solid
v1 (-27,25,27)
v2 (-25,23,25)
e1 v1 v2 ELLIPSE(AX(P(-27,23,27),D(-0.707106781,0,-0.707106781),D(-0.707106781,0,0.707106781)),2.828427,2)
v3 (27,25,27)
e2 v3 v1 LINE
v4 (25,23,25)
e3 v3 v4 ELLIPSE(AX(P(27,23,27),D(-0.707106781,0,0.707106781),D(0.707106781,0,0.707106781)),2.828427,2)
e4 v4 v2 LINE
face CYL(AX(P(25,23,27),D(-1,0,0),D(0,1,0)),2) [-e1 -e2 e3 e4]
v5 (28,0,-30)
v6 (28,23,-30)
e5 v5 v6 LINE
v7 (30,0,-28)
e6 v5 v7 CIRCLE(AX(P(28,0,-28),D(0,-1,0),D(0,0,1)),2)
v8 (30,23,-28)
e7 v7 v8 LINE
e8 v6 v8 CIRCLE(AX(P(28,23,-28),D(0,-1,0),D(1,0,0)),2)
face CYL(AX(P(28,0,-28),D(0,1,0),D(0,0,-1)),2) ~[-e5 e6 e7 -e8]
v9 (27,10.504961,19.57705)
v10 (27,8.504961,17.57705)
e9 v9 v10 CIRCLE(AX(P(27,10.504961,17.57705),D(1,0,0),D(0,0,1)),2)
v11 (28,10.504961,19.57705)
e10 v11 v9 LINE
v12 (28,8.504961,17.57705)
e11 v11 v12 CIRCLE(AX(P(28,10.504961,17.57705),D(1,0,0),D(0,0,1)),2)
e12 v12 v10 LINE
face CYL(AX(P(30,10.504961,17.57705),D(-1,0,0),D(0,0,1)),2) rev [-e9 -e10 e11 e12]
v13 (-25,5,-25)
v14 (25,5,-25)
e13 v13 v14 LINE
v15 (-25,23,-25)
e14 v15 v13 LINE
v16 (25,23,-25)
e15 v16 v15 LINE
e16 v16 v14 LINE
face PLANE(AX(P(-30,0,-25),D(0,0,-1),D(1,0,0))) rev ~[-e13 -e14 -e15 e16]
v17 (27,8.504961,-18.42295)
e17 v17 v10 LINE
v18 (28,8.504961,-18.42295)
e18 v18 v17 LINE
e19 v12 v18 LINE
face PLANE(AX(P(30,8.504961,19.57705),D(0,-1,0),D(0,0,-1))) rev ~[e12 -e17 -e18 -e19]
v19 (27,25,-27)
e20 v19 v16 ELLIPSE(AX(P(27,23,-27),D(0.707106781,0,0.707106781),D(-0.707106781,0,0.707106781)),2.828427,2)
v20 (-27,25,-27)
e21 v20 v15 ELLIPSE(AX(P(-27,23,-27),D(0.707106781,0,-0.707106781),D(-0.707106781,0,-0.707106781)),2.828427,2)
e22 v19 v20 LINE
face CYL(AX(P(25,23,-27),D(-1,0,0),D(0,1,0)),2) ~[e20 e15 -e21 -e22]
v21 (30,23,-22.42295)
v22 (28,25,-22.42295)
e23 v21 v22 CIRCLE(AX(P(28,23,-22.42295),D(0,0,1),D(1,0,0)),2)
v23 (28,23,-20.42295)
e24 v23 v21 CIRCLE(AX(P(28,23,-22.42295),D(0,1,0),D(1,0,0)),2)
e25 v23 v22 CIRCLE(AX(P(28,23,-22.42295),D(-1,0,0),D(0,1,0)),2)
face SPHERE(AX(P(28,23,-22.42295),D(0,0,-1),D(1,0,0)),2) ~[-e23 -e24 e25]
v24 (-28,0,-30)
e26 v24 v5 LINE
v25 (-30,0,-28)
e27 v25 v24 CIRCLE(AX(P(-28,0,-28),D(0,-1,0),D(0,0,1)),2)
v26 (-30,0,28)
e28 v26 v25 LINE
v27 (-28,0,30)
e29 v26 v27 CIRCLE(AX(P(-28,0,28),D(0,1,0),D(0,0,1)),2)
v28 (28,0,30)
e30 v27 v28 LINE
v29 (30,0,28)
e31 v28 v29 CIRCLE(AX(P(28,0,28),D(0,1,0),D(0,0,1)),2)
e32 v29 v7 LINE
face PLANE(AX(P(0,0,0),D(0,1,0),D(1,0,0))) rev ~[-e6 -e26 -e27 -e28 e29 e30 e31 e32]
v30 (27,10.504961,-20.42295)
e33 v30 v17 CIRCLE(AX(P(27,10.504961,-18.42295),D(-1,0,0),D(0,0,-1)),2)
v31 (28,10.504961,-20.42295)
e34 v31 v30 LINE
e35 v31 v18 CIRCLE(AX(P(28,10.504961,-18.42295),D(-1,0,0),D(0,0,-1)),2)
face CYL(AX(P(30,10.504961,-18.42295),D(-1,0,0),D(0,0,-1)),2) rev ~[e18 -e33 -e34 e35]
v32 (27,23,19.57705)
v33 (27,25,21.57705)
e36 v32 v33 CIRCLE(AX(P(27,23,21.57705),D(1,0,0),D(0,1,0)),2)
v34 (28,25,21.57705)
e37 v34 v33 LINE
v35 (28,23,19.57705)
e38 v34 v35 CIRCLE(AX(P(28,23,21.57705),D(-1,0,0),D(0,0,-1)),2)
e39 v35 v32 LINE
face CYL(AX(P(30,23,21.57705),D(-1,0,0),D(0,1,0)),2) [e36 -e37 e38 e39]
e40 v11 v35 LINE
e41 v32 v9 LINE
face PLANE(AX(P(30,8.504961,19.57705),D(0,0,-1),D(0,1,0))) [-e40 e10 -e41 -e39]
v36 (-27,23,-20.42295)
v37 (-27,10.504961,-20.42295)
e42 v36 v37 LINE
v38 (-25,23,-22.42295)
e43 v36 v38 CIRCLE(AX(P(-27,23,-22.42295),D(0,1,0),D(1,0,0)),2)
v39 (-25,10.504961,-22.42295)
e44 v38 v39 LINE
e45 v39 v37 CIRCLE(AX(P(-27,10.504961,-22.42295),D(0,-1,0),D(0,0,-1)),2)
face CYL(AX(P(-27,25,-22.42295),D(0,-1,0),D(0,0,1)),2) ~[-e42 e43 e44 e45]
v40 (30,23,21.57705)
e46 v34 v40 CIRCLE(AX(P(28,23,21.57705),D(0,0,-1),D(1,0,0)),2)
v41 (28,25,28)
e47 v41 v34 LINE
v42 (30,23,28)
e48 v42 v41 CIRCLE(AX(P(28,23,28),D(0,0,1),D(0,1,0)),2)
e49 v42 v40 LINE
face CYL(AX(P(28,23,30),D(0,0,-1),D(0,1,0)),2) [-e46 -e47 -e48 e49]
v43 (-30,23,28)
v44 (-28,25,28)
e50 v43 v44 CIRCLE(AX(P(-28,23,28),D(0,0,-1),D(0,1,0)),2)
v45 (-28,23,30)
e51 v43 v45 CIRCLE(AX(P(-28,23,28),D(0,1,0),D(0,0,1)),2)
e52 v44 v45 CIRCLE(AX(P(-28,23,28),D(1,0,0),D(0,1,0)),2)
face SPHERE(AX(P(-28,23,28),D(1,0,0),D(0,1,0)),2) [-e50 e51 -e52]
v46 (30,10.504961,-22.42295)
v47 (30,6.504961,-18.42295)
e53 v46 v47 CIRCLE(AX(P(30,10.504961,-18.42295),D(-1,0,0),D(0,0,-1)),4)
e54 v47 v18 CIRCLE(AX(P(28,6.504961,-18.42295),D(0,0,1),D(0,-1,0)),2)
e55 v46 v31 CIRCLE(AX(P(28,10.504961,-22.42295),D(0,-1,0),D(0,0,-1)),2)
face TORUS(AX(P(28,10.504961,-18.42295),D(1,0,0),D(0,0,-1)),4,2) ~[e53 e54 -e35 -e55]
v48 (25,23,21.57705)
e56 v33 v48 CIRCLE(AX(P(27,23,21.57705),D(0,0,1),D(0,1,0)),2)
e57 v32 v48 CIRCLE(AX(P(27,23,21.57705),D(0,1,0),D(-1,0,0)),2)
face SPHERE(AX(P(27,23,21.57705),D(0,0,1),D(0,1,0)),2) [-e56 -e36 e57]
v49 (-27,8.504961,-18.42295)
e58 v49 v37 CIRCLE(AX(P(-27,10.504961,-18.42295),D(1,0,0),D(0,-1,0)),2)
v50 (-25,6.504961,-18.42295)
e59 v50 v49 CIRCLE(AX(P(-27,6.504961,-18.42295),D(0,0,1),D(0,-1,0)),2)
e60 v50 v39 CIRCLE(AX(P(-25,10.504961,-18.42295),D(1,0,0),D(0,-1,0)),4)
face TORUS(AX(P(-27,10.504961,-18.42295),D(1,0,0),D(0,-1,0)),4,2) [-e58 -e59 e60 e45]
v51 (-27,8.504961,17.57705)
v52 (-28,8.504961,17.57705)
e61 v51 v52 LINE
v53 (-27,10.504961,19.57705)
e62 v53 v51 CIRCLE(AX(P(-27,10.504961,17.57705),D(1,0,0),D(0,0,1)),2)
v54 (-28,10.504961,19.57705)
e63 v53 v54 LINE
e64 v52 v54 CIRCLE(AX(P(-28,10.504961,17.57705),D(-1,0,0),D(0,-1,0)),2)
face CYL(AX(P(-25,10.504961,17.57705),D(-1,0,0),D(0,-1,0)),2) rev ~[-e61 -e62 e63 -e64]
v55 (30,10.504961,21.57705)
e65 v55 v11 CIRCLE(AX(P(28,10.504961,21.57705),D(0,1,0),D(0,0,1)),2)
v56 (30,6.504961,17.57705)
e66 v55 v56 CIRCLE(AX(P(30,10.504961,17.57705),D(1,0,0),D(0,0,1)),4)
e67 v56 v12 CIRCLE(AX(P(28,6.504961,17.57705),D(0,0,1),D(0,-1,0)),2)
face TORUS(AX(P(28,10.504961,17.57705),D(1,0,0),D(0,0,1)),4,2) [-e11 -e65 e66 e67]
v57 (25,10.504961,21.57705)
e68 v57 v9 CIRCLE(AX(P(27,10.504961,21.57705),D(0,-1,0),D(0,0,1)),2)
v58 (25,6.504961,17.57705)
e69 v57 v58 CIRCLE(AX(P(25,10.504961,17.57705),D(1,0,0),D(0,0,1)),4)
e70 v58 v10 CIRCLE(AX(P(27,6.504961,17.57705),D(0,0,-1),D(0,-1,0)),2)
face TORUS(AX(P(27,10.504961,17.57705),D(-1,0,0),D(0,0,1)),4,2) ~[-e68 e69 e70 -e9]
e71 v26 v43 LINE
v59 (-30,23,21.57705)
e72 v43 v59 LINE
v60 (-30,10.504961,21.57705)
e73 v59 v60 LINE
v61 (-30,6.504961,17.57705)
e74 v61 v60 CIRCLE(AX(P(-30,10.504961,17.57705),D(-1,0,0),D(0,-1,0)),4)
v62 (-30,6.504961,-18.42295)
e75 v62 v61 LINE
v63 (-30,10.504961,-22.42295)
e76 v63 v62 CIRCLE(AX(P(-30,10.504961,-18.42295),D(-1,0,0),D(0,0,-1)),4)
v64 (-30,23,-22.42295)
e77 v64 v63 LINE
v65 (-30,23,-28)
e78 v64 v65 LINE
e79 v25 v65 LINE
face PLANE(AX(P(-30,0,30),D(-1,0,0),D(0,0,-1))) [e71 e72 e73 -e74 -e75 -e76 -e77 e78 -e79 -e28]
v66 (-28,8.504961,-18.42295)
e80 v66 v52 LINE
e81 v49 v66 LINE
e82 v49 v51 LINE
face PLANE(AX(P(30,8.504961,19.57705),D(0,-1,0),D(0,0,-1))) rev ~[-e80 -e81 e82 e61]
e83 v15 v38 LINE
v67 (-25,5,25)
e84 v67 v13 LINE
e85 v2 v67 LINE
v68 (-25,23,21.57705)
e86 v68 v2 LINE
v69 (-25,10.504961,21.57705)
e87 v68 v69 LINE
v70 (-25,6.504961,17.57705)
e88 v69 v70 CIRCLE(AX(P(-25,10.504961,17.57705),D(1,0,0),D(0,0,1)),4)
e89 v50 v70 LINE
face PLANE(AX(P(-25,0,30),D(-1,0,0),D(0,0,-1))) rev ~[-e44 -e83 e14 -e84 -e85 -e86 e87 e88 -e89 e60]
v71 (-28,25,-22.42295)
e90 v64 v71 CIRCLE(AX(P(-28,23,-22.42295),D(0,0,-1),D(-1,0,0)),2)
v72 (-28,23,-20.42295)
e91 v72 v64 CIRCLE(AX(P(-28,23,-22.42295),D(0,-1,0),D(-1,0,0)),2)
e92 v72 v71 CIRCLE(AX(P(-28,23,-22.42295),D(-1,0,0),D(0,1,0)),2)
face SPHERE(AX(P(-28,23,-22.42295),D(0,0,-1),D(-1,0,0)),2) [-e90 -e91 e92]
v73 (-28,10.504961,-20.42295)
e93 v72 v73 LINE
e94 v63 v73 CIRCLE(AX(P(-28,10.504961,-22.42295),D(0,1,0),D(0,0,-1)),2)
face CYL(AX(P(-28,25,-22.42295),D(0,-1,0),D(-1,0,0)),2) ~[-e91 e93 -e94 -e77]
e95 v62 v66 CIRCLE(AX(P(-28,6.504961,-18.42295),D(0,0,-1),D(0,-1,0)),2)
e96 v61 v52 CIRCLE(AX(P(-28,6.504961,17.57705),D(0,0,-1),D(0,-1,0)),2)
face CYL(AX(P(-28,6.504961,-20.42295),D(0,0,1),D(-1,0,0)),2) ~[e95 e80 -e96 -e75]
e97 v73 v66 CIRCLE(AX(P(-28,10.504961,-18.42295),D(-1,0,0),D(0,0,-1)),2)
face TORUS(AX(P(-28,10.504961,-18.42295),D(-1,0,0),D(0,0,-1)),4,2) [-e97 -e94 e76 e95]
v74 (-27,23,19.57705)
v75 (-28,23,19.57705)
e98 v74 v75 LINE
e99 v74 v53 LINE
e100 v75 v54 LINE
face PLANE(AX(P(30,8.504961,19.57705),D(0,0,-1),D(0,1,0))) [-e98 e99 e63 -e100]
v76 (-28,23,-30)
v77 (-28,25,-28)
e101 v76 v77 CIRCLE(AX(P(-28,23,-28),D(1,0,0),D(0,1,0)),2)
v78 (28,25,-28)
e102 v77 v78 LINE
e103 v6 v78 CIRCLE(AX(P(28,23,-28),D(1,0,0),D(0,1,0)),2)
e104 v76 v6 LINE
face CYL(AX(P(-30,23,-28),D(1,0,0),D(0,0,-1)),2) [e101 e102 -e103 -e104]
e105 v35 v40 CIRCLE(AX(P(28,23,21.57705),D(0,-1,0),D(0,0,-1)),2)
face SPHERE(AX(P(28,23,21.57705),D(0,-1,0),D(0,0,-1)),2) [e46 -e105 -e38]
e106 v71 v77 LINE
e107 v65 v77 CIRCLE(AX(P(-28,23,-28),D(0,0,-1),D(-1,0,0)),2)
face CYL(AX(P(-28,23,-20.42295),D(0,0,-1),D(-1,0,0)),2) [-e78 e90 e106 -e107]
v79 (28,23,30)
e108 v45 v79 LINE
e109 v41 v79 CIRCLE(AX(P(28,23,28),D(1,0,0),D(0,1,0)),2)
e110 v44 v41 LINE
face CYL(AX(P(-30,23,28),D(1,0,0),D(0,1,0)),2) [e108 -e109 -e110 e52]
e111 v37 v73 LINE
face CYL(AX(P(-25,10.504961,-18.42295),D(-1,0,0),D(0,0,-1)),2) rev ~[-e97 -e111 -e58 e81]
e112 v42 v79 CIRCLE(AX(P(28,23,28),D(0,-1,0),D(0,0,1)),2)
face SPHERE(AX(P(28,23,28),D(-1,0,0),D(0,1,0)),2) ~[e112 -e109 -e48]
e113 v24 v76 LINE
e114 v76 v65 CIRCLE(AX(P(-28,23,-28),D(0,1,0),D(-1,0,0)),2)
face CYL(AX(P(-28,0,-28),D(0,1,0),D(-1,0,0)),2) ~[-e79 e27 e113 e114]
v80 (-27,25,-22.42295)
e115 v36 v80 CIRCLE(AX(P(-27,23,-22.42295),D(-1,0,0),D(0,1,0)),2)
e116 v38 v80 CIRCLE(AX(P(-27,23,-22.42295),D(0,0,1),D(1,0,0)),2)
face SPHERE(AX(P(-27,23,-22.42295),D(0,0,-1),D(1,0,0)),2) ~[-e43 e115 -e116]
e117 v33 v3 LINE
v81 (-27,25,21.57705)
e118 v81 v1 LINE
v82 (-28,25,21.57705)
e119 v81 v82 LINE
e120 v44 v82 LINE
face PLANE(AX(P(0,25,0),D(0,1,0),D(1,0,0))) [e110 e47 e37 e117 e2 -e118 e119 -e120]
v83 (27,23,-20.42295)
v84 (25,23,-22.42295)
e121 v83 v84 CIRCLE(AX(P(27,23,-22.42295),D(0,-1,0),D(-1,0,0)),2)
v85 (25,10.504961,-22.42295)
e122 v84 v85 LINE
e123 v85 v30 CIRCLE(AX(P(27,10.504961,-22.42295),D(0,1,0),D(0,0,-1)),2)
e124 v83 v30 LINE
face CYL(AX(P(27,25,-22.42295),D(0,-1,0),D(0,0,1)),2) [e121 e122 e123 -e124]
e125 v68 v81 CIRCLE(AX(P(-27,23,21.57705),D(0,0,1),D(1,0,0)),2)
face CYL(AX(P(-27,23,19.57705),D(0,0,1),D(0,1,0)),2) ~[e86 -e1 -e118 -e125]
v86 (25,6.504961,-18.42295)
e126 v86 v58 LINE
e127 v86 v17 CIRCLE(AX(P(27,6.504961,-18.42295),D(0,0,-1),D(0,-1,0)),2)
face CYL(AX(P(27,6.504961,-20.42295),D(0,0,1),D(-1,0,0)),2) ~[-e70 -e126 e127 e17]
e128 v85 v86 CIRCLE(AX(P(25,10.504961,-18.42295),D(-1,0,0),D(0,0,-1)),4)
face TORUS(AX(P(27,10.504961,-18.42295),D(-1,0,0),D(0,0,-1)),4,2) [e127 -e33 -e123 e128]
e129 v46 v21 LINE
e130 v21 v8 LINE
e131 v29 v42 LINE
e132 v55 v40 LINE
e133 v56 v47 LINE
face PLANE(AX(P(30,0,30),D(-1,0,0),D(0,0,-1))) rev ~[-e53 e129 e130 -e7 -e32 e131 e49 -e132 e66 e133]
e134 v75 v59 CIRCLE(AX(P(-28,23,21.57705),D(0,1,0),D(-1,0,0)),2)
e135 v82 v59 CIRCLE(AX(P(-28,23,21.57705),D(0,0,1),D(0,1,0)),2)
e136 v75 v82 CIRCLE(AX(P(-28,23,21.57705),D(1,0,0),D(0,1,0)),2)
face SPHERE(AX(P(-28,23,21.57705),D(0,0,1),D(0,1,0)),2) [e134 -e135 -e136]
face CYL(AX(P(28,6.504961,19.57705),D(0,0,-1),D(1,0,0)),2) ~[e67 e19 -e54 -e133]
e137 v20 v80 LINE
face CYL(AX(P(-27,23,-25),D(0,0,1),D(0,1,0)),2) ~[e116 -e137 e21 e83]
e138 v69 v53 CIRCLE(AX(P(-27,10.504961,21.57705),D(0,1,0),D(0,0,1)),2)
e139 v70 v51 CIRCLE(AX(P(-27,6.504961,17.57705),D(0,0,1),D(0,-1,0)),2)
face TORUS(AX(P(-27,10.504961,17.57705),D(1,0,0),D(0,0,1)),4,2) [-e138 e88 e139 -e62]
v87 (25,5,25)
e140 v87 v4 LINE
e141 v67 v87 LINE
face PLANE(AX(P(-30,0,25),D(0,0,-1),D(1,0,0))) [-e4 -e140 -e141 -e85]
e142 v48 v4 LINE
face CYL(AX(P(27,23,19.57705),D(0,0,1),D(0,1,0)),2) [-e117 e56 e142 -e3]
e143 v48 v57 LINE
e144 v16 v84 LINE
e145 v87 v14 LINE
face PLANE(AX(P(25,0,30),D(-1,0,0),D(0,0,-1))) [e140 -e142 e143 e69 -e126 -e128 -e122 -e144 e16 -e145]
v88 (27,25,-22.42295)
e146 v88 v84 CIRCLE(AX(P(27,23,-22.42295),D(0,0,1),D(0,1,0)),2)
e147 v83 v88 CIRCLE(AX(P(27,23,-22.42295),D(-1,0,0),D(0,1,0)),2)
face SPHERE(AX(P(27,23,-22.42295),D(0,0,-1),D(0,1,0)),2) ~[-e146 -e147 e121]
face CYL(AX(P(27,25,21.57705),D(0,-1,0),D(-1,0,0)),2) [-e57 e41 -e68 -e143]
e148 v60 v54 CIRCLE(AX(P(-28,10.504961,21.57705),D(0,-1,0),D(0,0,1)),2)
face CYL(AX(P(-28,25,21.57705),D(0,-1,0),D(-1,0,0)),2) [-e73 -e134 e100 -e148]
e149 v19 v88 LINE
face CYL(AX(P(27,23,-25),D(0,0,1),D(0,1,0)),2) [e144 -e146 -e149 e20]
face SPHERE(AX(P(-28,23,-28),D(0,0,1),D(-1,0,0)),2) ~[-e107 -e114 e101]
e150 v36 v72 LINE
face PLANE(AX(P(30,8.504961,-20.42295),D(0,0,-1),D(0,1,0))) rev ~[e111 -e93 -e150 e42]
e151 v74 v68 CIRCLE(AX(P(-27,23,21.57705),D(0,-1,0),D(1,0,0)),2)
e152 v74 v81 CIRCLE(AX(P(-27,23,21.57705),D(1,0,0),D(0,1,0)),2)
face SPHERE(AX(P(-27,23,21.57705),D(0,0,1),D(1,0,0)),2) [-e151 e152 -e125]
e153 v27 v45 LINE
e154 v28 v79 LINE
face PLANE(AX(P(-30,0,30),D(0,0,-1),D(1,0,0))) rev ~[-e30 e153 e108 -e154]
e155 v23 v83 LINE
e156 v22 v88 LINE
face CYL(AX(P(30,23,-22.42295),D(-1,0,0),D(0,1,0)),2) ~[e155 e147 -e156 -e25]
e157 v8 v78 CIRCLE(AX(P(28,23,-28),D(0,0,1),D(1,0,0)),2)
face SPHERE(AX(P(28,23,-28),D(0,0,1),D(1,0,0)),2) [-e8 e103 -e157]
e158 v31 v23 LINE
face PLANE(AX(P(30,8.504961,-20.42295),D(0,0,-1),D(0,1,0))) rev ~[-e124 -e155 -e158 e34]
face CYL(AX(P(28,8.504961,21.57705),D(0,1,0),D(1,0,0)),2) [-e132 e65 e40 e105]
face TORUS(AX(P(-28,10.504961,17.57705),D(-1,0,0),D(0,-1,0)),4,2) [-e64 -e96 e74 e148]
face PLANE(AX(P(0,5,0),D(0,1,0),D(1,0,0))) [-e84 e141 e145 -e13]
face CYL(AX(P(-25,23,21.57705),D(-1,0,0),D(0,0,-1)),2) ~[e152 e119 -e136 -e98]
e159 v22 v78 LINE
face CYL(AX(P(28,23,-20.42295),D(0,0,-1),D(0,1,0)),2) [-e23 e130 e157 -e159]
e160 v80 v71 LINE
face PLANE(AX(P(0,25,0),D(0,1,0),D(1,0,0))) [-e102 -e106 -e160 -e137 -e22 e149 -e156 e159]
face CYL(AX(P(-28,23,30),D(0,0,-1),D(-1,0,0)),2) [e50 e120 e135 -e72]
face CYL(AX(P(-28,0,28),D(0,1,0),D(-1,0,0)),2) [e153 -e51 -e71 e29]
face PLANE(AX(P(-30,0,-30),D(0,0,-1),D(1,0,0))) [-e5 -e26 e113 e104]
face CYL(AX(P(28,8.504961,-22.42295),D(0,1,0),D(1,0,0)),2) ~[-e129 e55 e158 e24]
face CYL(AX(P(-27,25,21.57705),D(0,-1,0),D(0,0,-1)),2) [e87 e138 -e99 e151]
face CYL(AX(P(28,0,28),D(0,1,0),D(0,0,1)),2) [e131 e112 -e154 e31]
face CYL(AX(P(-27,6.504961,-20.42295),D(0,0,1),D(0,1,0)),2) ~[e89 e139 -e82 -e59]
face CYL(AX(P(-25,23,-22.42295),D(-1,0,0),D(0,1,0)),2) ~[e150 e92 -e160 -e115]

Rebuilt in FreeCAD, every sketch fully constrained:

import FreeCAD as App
import Part
import Sketcher

V = App.Vector


def edges_at(feature, points):
    """Names of the edges that pass closest to the given points."""
    edges = feature.Shape.Edges
    near = lambda p: min(range(len(edges)), key=lambda i: edges[i].distToShape(Part.Vertex(*p))[0])
    return sorted({f"Edge{near(p) + 1}" for p in points})


def faces_at(feature, points):
    """Names of the faces that lie closest to the given points."""
    faces = feature.Shape.Faces
    near = lambda p: min(range(len(faces)), key=lambda i: faces[i].distToShape(Part.Vertex(*p))[0])
    return sorted({f"Face{near(p) + 1}" for p in points})

doc = App.newDocument("Part")
params = doc.addObject("Spreadsheet::Sheet", "Params")
for row, (alias, value) in enumerate([
    ("sketch1_width", "60 mm"),
    ("pad1_length", "25 mm"),
    ("thickness_wall", "5 mm"),
    ("sketch2_width", "50 mm"),
    ("sketch2_height", "40 mm"),
    ("pocket1_length", "100 mm"),
    ("fillet_radius", "2 mm"),
], start=1):
    params.set(f"A{row}", alias)
    params.set(f"B{row}", "=" + value)
    params.setAlias(f"B{row}", alias)

body = doc.addObject("PartDesign::Body", "Body")

sketch1 = body.newObject("Sketcher::SketchObject", "Sketch")
sketch1.AttachmentSupport = (doc.getObject("XZ_Plane"), [""])
sketch1.MapMode = "FlatFace"
sketch1.addGeometry([
    Part.LineSegment(V(-30, -30, 0), V(-30, 30, 0)),
    Part.LineSegment(V(-30, 30, 0), V(30, 30, 0)),
    Part.LineSegment(V(30, 30, 0), V(30, -30, 0)),
    Part.LineSegment(V(30, -30, 0), V(-30, -30, 0)),
], False)
sketch1.addConstraint([
    Sketcher.Constraint("Coincident", 0, 2, 1, 1),
    Sketcher.Constraint("Coincident", 1, 2, 2, 1),
    Sketcher.Constraint("Coincident", 2, 2, 3, 1),
    Sketcher.Constraint("Coincident", 3, 2, 0, 1),
    Sketcher.Constraint("Vertical", 0),
    Sketcher.Constraint("Horizontal", 1),
    Sketcher.Constraint("Vertical", 2),
    Sketcher.Constraint("Horizontal", 3),
    Sketcher.Constraint("Symmetric", 0, 2, 2, 2, -1, 1),
    Sketcher.Constraint("Equal", 3, 0),
    Sketcher.Constraint("DistanceX", 1, 1, 1, 2, 60.0),
])
sketch1.setExpression("Constraints[10]", "Params.sketch1_width")
pad1 = body.newObject("PartDesign::Pad", "Pad")
pad1.Profile = sketch1
pad1.setExpression("Length", "Params.pad1_length")
pad1.Reversed = True
doc.recompute()

thickness = body.newObject("PartDesign::Thickness", "Thickness")
thickness.Base = (pad1, faces_at(pad1, [(0, 25, 0)]))
thickness.setExpression("Value", "Params.thickness_wall")
thickness.Reversed = True
thickness.Join = "Intersection"

sketch2 = body.newObject("Sketcher::SketchObject", "Sketch001")
sketch2.AttachmentSupport = (doc.getObject("YZ_Plane"), [""])
sketch2.MapMode = "FlatFace"
sketch2.AttachmentOffset = App.Placement(V(0, 0, 30), App.Rotation())
sketch2.addGeometry([
    Part.LineSegment(V(59, 20, 0), V(9, 20, 0)),
    Part.LineSegment(V(9, 20, 0), V(9, -20, 0)),
    Part.LineSegment(V(9, -20, 0), V(59, -20, 0)),
    Part.LineSegment(V(59, -20, 0), V(59, 20, 0)),
], False)
sketch2.addConstraint([
    Sketcher.Constraint("Coincident", 0, 2, 1, 1),
    Sketcher.Constraint("Coincident", 1, 2, 2, 1),
    Sketcher.Constraint("Coincident", 2, 2, 3, 1),
    Sketcher.Constraint("Coincident", 3, 2, 0, 1),
    Sketcher.Constraint("Horizontal", 0),
    Sketcher.Constraint("Vertical", 1),
    Sketcher.Constraint("Horizontal", 2),
    Sketcher.Constraint("Vertical", 3),
    Sketcher.Constraint("DistanceX", 0, 2, 0, 1, 50.0),
    Sketcher.Constraint("DistanceY", 1, 2, 1, 1, 40.0),
    Sketcher.Constraint("DistanceX", -1, 1, 0, 2, 8.504961),
    Sketcher.Constraint("DistanceY", -1, 1, 0, 2, 19.57705),
])
sketch2.setExpression("Constraints[8]", "Params.sketch2_width")
sketch2.setExpression("Constraints[9]", "Params.sketch2_height")
pocket1 = body.newObject("PartDesign::Pocket", "Pocket")
pocket1.Profile = sketch2
pocket1.setExpression("Length", "Params.pocket1_length")
doc.recompute()

fillet = body.newObject("PartDesign::Fillet", "Fillet")
fillet.Base = (pocket1, edges_at(pocket1, [
    (-30, 25, -25.211),
    (25, 25, 22.289),
    (0, 25, -25),
    (-25, 25, -22.711),
    (0, 25, 30),
    (0, 25, 25),
    (-25, 25, 22.289),
    (-25, 16.752, 19.577),
    (-25, 8.505, -0.423),
    (-25, 16.752, -20.423),
    (25, 25, -22.711),
    (-30, 25, 24.789),
    (30, 25, -25.211),
    (30, 16.752, -20.423),
    (30, 16.752, 19.577),
    (30, 8.505, -0.423),
    (27.5, 25, -20.423),
    (-30, 16.752, -20.423),
    (-27.5, 25, -20.423),
    (-30, 8.505, -0.423),
    (-27.5, 8.505, -20.423),
    (25, 8.505, -0.423),
    (27.5, 8.505, -20.423),
    (27.5, 25, 19.577),
    (27.5, 8.505, 19.577),
    (-27.5, 25, 19.577),
    (-30, 16.752, 19.577),
    (-27.5, 8.505, 19.577),
    (25, 16.752, -20.423),
    (25, 16.752, 19.577),
    (30, 25, 24.789),
    (30, 12.5, 30),
    (-30, 12.5, 30),
    (-30, 12.5, -30),
    (30, 12.5, -30),
    (0, 25, -30),
]))
fillet.setExpression("Radius", "Params.fillet_radius")

doc.recompute()
